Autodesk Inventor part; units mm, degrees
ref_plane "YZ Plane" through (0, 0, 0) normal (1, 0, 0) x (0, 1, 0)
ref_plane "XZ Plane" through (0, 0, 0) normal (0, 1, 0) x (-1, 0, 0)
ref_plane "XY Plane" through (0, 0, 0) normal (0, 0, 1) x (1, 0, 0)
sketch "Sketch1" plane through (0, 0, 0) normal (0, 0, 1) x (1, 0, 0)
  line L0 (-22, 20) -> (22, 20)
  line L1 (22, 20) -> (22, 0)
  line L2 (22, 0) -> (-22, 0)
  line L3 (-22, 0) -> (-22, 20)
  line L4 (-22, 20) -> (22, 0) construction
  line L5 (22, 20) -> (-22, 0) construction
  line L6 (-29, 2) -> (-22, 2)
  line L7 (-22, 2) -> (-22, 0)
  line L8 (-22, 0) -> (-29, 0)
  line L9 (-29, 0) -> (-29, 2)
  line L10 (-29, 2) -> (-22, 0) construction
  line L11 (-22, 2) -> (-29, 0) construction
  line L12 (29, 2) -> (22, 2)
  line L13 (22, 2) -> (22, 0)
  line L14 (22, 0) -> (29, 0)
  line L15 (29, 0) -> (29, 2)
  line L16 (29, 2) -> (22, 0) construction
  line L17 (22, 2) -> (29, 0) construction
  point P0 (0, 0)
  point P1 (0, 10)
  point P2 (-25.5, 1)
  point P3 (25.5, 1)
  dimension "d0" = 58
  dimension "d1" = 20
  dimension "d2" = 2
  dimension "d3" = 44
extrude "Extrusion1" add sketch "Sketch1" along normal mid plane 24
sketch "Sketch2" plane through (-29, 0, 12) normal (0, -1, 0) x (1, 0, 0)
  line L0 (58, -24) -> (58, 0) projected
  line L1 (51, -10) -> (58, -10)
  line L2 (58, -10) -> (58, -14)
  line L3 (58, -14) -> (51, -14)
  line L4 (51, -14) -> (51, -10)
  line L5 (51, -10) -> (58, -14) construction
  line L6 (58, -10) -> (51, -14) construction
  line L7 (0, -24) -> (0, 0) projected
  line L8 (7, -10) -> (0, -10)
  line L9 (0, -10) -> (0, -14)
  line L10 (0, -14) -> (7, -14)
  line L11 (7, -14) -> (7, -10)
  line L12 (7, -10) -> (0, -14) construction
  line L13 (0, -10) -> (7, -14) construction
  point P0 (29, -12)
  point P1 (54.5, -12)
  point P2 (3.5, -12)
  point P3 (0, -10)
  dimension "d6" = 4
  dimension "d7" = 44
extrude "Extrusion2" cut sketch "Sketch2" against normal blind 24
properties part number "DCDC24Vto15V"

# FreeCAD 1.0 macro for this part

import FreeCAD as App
import Part
import Sketcher

V = App.Vector

doc = App.newDocument("Part")
body = doc.addObject("PartDesign::Body", "Body")

sketch1 = body.newObject("Sketcher::SketchObject", "Sketch")
sketch1.AttachmentSupport = (doc.getObject("XY_Plane"), [""])
sketch1.MapMode = "FlatFace"
sketch1.addGeometry([
    Part.LineSegment(V(22, 20, 0), V(-22, 20, 0)),
    Part.LineSegment(V(-22, 20, 0), V(-22, 2, 0)),
    Part.LineSegment(V(-22, 2, 0), V(-29, 2, 0)),
    Part.LineSegment(V(-29, 2, 0), V(-29, 0, 0)),
    Part.LineSegment(V(-29, 0, 0), V(29, 0, 0)),
    Part.LineSegment(V(29, 0, 0), V(29, 2, 0)),
    Part.LineSegment(V(29, 2, 0), V(22, 2, 0)),
    Part.LineSegment(V(22, 2, 0), V(22, 20, 0)),
], False)
sketch1.addConstraint([
    Sketcher.Constraint("Coincident", 0, 2, 1, 1),
    Sketcher.Constraint("Coincident", 1, 2, 2, 1),
    Sketcher.Constraint("Coincident", 2, 2, 3, 1),
    Sketcher.Constraint("Coincident", 3, 2, 4, 1),
    Sketcher.Constraint("Coincident", 4, 2, 5, 1),
    Sketcher.Constraint("Coincident", 5, 2, 6, 1),
    Sketcher.Constraint("Coincident", 6, 2, 7, 1),
    Sketcher.Constraint("Coincident", 7, 2, 0, 1),
    Sketcher.Constraint("Horizontal", 0),
    Sketcher.Constraint("Vertical", 1),
    Sketcher.Constraint("Horizontal", 2),
    Sketcher.Constraint("Vertical", 3),
    Sketcher.Constraint("Horizontal", 4),
    Sketcher.Constraint("Vertical", 5),
    Sketcher.Constraint("Horizontal", 6),
    Sketcher.Constraint("Vertical", 7),
    Sketcher.Constraint("Symmetric", 3, 2, 4, 2, -1, 1),
    Sketcher.Constraint("Symmetric", 1, 2, 6, 2, -2),
    Sketcher.Constraint("DistanceX", 0, 2, 0, 1, 44.0),
    Sketcher.Constraint("DistanceX", 4, 1, 4, 2, 58.0),
    Sketcher.Constraint("DistanceY", 3, 2, 3, 1, 2.0),
    Sketcher.Constraint("DistanceY", -1, 1, 0, 2, 20.0),
])
pad1 = body.newObject("PartDesign::Pad", "Pad")
pad1.Profile = sketch1
pad1.Length = 24
pad1.Midplane = True

sketch2 = body.newObject("Sketcher::SketchObject", "Sketch001")
sketch2.AttachmentSupport = (doc.getObject("XZ_Plane"), [""])
sketch2.MapMode = "FlatFace"
sketch2.addGeometry([
    Part.LineSegment(V(22, -2, 0), V(29, -2, 0)),
    Part.LineSegment(V(29, -2, 0), V(29, 2, 0)),
    Part.LineSegment(V(29, 2, 0), V(22, 2, 0)),
    Part.LineSegment(V(22, 2, 0), V(22, -2, 0)),
    Part.LineSegment(V(-29, 2, 0), V(-29, -2, 0)),
    Part.LineSegment(V(-29, -2, 0), V(-22, -2, 0)),
    Part.LineSegment(V(-22, -2, 0), V(-22, 2, 0)),
    Part.LineSegment(V(-22, 2, 0), V(-29, 2, 0)),
], False)
sketch2.addConstraint([
    Sketcher.Constraint("Coincident", 0, 2, 1, 1),
    Sketcher.Constraint("Coincident", 1, 2, 2, 1),
    Sketcher.Constraint("Coincident", 2, 2, 3, 1),
    Sketcher.Constraint("Coincident", 3, 2, 0, 1),
    Sketcher.Constraint("Coincident", 4, 2, 5, 1),
    Sketcher.Constraint("Coincident", 5, 2, 6, 1),
    Sketcher.Constraint("Coincident", 6, 2, 7, 1),
    Sketcher.Constraint("Coincident", 7, 2, 4, 1),
    Sketcher.Constraint("Horizontal", 0),
    Sketcher.Constraint("Vertical", 1),
    Sketcher.Constraint("Horizontal", 2),
    Sketcher.Constraint("Vertical", 3),
    Sketcher.Constraint("Vertical", 4),
    Sketcher.Constraint("Horizontal", 5),
    Sketcher.Constraint("Vertical", 6),
    Sketcher.Constraint("Horizontal", 7),
    Sketcher.Constraint("Symmetric", 1, 2, 4, 2, -1, 1),
    Sketcher.Constraint("Symmetric", 3, 2, 6, 2, -1, 1),
    Sketcher.Constraint("Horizontal", 3, 2, 4, 2),
    Sketcher.Constraint("DistanceY", 1, 1, 1, 2, 4.0),
    Sketcher.Constraint("DistanceX", 5, 2, 3, 2, 44.0),
    Sketcher.Constraint("DistanceX", 0, 1, 0, 2, 7.0),
])
pocket1 = body.newObject("PartDesign::Pocket", "Pocket")
pocket1.Profile = sketch2
pocket1.Length = 24

doc.recompute()
